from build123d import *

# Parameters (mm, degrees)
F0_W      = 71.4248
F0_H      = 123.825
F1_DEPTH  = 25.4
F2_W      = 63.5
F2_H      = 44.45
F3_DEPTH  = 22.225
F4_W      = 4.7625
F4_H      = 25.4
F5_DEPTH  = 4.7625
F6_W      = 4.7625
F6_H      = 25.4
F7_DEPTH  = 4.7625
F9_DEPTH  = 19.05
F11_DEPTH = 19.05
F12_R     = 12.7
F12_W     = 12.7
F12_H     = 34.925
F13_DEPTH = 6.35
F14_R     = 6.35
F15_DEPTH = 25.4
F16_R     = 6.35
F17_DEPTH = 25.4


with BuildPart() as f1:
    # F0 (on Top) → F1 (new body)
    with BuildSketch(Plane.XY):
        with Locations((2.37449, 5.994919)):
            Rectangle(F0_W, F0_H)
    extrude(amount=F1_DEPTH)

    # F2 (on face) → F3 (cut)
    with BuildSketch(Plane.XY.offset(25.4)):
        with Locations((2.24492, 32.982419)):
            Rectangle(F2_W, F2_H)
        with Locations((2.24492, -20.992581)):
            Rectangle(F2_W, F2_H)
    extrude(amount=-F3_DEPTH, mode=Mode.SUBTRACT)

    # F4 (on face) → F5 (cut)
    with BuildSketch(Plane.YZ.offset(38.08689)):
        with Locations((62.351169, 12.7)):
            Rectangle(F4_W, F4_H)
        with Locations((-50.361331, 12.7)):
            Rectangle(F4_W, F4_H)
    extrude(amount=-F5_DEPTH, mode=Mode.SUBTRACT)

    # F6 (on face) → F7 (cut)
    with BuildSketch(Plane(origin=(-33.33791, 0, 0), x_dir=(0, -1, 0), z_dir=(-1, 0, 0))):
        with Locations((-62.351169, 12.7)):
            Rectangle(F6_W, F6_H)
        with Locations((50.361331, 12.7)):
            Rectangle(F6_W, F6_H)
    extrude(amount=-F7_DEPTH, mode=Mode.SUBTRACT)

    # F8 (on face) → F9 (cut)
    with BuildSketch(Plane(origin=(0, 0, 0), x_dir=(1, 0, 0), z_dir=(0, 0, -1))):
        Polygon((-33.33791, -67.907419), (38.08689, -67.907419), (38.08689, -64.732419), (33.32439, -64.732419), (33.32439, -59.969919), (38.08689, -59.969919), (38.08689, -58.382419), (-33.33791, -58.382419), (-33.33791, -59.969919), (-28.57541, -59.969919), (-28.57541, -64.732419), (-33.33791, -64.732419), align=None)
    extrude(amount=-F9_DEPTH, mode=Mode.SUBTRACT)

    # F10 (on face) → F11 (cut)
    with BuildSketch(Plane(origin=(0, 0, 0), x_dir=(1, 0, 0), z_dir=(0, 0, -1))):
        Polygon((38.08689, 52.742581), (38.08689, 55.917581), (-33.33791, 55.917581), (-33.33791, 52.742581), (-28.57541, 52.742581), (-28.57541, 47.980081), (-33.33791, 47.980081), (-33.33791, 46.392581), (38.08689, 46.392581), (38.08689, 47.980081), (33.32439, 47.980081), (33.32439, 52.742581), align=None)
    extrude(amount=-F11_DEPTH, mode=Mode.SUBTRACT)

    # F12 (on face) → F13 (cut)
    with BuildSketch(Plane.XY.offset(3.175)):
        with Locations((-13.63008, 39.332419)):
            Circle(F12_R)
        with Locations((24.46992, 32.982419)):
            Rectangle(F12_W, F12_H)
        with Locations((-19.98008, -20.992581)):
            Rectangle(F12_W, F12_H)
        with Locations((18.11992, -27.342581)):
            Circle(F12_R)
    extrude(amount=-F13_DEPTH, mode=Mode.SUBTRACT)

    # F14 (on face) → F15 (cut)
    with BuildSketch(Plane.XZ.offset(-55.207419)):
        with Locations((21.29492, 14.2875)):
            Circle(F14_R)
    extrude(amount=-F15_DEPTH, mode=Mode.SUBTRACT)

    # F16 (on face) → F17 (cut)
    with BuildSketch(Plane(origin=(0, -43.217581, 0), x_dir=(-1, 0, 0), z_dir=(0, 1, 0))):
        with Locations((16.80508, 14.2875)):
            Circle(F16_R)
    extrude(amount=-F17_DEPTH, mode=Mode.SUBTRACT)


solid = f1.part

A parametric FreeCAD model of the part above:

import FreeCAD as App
import Part
import Sketcher

V = App.Vector
Q = App.Units.Quantity

doc = App.newDocument("Part")
params = doc.addObject("Spreadsheet::Sheet", "Params")
for row, (alias, value) in enumerate([
    ("sketch1_width", "2.812 in"),
    ("sketch1_height", "4.875 in"),
    ("pad1_length", "1 in"),
    ("sketch2_width", "2.5 in"),
    ("sketch2_height", "1.75 in"),
    ("pocket1_length", "0.875 in"),
    ("sketch3_height", "1 in"),
    ("sketch3_width", "0.1875 in"),
    ("pocket2_length", "0.1875 in"),
    ("sketch4_height", "1 in"),
    ("sketch4_width", "0.1875 in"),
    ("pocket3_length", "0.1875 in"),
    ("sketch5_width", "2.812 in"),
    ("sketch5_width2", "0.1875 in"),
    ("sketch5_height", "0.125 in"),
    ("sketch5_height2", "0.0625 in"),
    ("pocket4_length", "0.75 in"),
    ("sketch6_width", "2.812 in"),
    ("sketch6_width2", "0.1875 in"),
    ("sketch6_height", "0.125 in"),
    ("sketch6_height2", "0.0625 in"),
    ("pocket5_length", "0.75 in"),
    ("sketch7_diameter", "1 in"),
    ("sketch7_width", "0.5 in"),
    ("sketch7_height", "1.375 in"),
    ("pocket6_length", "0.25 in"),
    ("sketch8_diameter", "0.5 in"),
    ("pocket7_length", "1 in"),
    ("sketch9_diameter", "0.5 in"),
    ("pocket8_length", "1 in"),
], start=1):
    params.set(f"A{row}", alias)
    params.set(f"B{row}", "=" + value)
    params.setAlias(f"B{row}", alias)

body = doc.addObject("PartDesign::Body", "Body")

# Sketch on XY plane
sketch1 = doc.addObject("Sketcher::SketchObject", "Sketch")
body.addObject(sketch1)
sketch1.AttachmentSupport = (doc.XY_Plane, [""])
sketch1.MapMode = "FlatFace"
sketch1.addGeometry([
    Part.LineSegment(V(-33.33791, 67.907419, 0), V(-33.33791, -55.917581, 0)),
    Part.LineSegment(V(-33.33791, -55.917581, 0), V(38.08689, -55.917581, 0)),
    Part.LineSegment(V(38.08689, -55.917581, 0), V(38.08689, 67.907419, 0)),
    Part.LineSegment(V(38.08689, 67.907419, 0), V(-33.33791, 67.907419, 0)),
], False)
sketch1.addConstraint([
    Sketcher.Constraint("Coincident", 0, 2, 1, 1),
    Sketcher.Constraint("Coincident", 1, 2, 2, 1),
    Sketcher.Constraint("Coincident", 2, 2, 3, 1),
    Sketcher.Constraint("Coincident", 3, 2, 0, 1),
    Sketcher.Constraint("Vertical", 0),
    Sketcher.Constraint("Horizontal", 1),
    Sketcher.Constraint("Vertical", 2),
    Sketcher.Constraint("Horizontal", 3),
    Sketcher.Constraint("DistanceX", 1, 1, 1, 2, Q("2.812 in")),
    Sketcher.Constraint("DistanceY", 0, 2, 0, 1, Q("4.875 in")),
    Sketcher.Constraint("DistanceX", 0, 2, -1, 1, Q("33.33791 mm")),
    Sketcher.Constraint("DistanceY", 0, 2, -1, 1, Q("55.917581 mm")),
])
sketch1.setExpression("Constraints[8]", "Params.sketch1_width")
sketch1.setExpression("Constraints[9]", "Params.sketch1_height")
pad1 = doc.addObject("PartDesign::Pad", "Pad")
body.addObject(pad1)
pad1.Profile = sketch1
pad1.setExpression("Length", "Params.pad1_length")

# Sketch on XY plane
sketch2 = doc.addObject("Sketcher::SketchObject", "Sketch001")
body.addObject(sketch2)
sketch2.AttachmentSupport = (doc.XY_Plane, [""])
sketch2.MapMode = "FlatFace"
sketch2.AttachmentOffset = App.Placement(V(0, 0, 1 * 25.4), App.Rotation())
sketch2.addGeometry([
    Part.LineSegment(V(-29.50508, 55.207419, 0), V(-29.50508, 10.757419, 0)),  # 0
    Part.LineSegment(V(-29.50508, 10.757419, 0), V(33.99492, 10.757419, 0)),  # 1
    Part.LineSegment(V(33.99492, 10.757419, 0), V(33.99492, 55.207419, 0)),  # 2
    Part.LineSegment(V(33.99492, 55.207419, 0), V(-29.50508, 55.207419, 0)),  # 3
    Part.LineSegment(V(-29.50508, 1.232419, 0), V(-29.50508, -43.217581, 0)),  # 4
    Part.LineSegment(V(-29.50508, -43.217581, 0), V(33.99492, -43.217581, 0)),  # 5
    Part.LineSegment(V(33.99492, -43.217581, 0), V(33.99492, 1.232419, 0)),  # 6
    Part.LineSegment(V(33.99492, 1.232419, 0), V(-29.50508, 1.232419, 0)),  # 7
], False)
sketch2.addConstraint([
    Sketcher.Constraint("Coincident", 0, 2, 1, 1),
    Sketcher.Constraint("Coincident", 1, 2, 2, 1),
    Sketcher.Constraint("Coincident", 2, 2, 3, 1),
    Sketcher.Constraint("Coincident", 3, 2, 0, 1),
    Sketcher.Constraint("Coincident", 4, 2, 5, 1),
    Sketcher.Constraint("Coincident", 5, 2, 6, 1),
    Sketcher.Constraint("Coincident", 6, 2, 7, 1),
    Sketcher.Constraint("Coincident", 7, 2, 4, 1),
    Sketcher.Constraint("Vertical", 0),
    Sketcher.Constraint("Horizontal", 1),
    Sketcher.Constraint("Vertical", 2),
    Sketcher.Constraint("Horizontal", 3),
    Sketcher.Constraint("Vertical", 4),
    Sketcher.Constraint("Horizontal", 5),
    Sketcher.Constraint("Vertical", 6),
    Sketcher.Constraint("Horizontal", 7),
    Sketcher.Constraint("Vertical", 3, 2, 4, 2),
    Sketcher.Constraint("Vertical", 2, 2, 5, 2),
    Sketcher.Constraint("Equal", 2, 4),
    Sketcher.Constraint("DistanceX", 1, 1, 1, 2, Q("2.5 in")),
    Sketcher.Constraint("DistanceY", 0, 2, 0, 1, Q("1.75 in")),
    Sketcher.Constraint("DistanceY", 4, 2, 0, 2, Q("2.125 in")),
    Sketcher.Constraint("DistanceX", 0, 2, -1, 1, Q("29.50508 mm")),
    Sketcher.Constraint("DistanceY", -1, 1, 0, 2, Q("10.757419 mm")),
])
sketch2.setExpression("Constraints[19]", "Params.sketch2_width")
sketch2.setExpression("Constraints[20]", "Params.sketch2_height")
pocket1 = doc.addObject("PartDesign::Pocket", "Pocket")
body.addObject(pocket1)
pocket1.Profile = sketch2
pocket1.setExpression("Length", "Params.pocket1_length")

# Sketch on YZ plane
sketch3 = doc.addObject("Sketcher::SketchObject", "Sketch002")
body.addObject(sketch3)
sketch3.AttachmentSupport = (doc.YZ_Plane, [""])
sketch3.MapMode = "FlatFace"
sketch3.AttachmentOffset = App.Placement(V(0, 0, 38.08689), App.Rotation())
sketch3.addGeometry([
    Part.LineSegment(V(59.969919, 25.4, 0), V(59.969919, 0, 0)),  # 0
    Part.LineSegment(V(59.969919, 0, 0), V(64.732419, 0, 0)),  # 1
    Part.LineSegment(V(64.732419, 0, 0), V(64.732419, 25.4, 0)),  # 2
    Part.LineSegment(V(64.732419, 25.4, 0), V(59.969919, 25.4, 0)),  # 3
    Part.LineSegment(V(-52.742581, 25.4, 0), V(-52.742581, 0, 0)),  # 4
    Part.LineSegment(V(-52.742581, 0, 0), V(-47.980081, 0, 0)),  # 5
    Part.LineSegment(V(-47.980081, 0, 0), V(-47.980081, 25.4, 0)),  # 6
    Part.LineSegment(V(-47.980081, 25.4, 0), V(-52.742581, 25.4, 0)),  # 7
], False)
sketch3.addConstraint([
    Sketcher.Constraint("Coincident", 0, 2, 1, 1),
    Sketcher.Constraint("Coincident", 1, 2, 2, 1),
    Sketcher.Constraint("Coincident", 2, 2, 3, 1),
    Sketcher.Constraint("Coincident", 3, 2, 0, 1),
    Sketcher.Constraint("Coincident", 4, 2, 5, 1),
    Sketcher.Constraint("Coincident", 5, 2, 6, 1),
    Sketcher.Constraint("Coincident", 6, 2, 7, 1),
    Sketcher.Constraint("Coincident", 7, 2, 4, 1),
    Sketcher.Constraint("Vertical", 0),
    Sketcher.Constraint("Horizontal", 1),
    Sketcher.Constraint("Vertical", 2),
    Sketcher.Constraint("Horizontal", 3),
    Sketcher.Constraint("Vertical", 4),
    Sketcher.Constraint("Horizontal", 5),
    Sketcher.Constraint("Vertical", 6),
    Sketcher.Constraint("Horizontal", 7),
    Sketcher.Constraint("PointOnObject", 0, 2, -1),
    Sketcher.Constraint("PointOnObject", 4, 2, -1),
    Sketcher.Constraint("Horizontal", 3, 2, 6, 2),
    Sketcher.Constraint("Equal", 3, 5),
    Sketcher.Constraint("DistanceY", 0, 2, 0, 1, Q("1 in")),
    Sketcher.Constraint("DistanceX", 1, 1, 1, 2, Q("0.1875 in")),
    Sketcher.Constraint("DistanceX", 5, 2, 0, 2, Q("4.25 in")),
    Sketcher.Constraint("DistanceX", -1, 1, 0, 2, Q("59.969919 mm")),
])
sketch3.setExpression("Constraints[20]", "Params.sketch3_height")
sketch3.setExpression("Constraints[21]", "Params.sketch3_width")
pocket2 = doc.addObject("PartDesign::Pocket", "Pocket001")
body.addObject(pocket2)
pocket2.Profile = sketch3
pocket2.setExpression("Length", "Params.pocket2_length")

# Sketch on YZ plane
sketch4 = doc.addObject("Sketcher::SketchObject", "Sketch003")
body.addObject(sketch4)
sketch4.AttachmentSupport = (doc.YZ_Plane, [""])
sketch4.MapMode = "FlatFace"
sketch4.AttachmentOffset = App.Placement(V(0, 0, -33.33791), App.Rotation())
sketch4.addGeometry([
    Part.LineSegment(V(64.732419, 25.4, 0), V(64.732419, 0, 0)),  # 0
    Part.LineSegment(V(64.732419, 0, 0), V(59.969919, 0, 0)),  # 1
    Part.LineSegment(V(59.969919, 0, 0), V(59.969919, 25.4, 0)),  # 2
    Part.LineSegment(V(59.969919, 25.4, 0), V(64.732419, 25.4, 0)),  # 3
    Part.LineSegment(V(-47.980081, 25.4, 0), V(-47.980081, 0, 0)),  # 4
    Part.LineSegment(V(-47.980081, 0, 0), V(-52.742581, 0, 0)),  # 5
    Part.LineSegment(V(-52.742581, 0, 0), V(-52.742581, 25.4, 0)),  # 6
    Part.LineSegment(V(-52.742581, 25.4, 0), V(-47.980081, 25.4, 0)),  # 7
], False)
sketch4.addConstraint([
    Sketcher.Constraint("Coincident", 0, 2, 1, 1),
    Sketcher.Constraint("Coincident", 1, 2, 2, 1),
    Sketcher.Constraint("Coincident", 2, 2, 3, 1),
    Sketcher.Constraint("Coincident", 3, 2, 0, 1),
    Sketcher.Constraint("Coincident", 4, 2, 5, 1),
    Sketcher.Constraint("Coincident", 5, 2, 6, 1),
    Sketcher.Constraint("Coincident", 6, 2, 7, 1),
    Sketcher.Constraint("Coincident", 7, 2, 4, 1),
    Sketcher.Constraint("Vertical", 0),
    Sketcher.Constraint("Horizontal", 1),
    Sketcher.Constraint("Vertical", 2),
    Sketcher.Constraint("Horizontal", 3),
    Sketcher.Constraint("Vertical", 4),
    Sketcher.Constraint("Horizontal", 5),
    Sketcher.Constraint("Vertical", 6),
    Sketcher.Constraint("Horizontal", 7),
    Sketcher.Constraint("PointOnObject", 0, 2, -1),
    Sketcher.Constraint("PointOnObject", 4, 2, -1),
    Sketcher.Constraint("Horizontal", 3, 2, 6, 2),
    Sketcher.Constraint("Equal", 3, 5),
    Sketcher.Constraint("DistanceY", 0, 2, 0, 1, Q("1 in")),
    Sketcher.Constraint("DistanceX", 1, 2, 1, 1, Q("0.1875 in")),
    Sketcher.Constraint("DistanceX", 4, 2, 1, 2, Q("4.25 in")),
    Sketcher.Constraint("DistanceX", -1, 1, 0, 2, Q("64.732419 mm")),
])
sketch4.setExpression("Constraints[20]", "Params.sketch4_height")
sketch4.setExpression("Constraints[21]", "Params.sketch4_width")
pocket3 = doc.addObject("PartDesign::Pocket", "Pocket002")
body.addObject(pocket3)
pocket3.Profile = sketch4
pocket3.setExpression("Length", "Params.pocket3_length")
pocket3.Reversed = True

# Sketch on XY plane
sketch5 = doc.addObject("Sketcher::SketchObject", "Sketch004")
body.addObject(sketch5)
sketch5.AttachmentSupport = (doc.XY_Plane, [""])
sketch5.MapMode = "FlatFace"
sketch5.addGeometry([
    Part.LineSegment(V(-33.33791, 67.907419, 0), V(38.08689, 67.907419, 0)),  # 0
    Part.LineSegment(V(38.08689, 67.907419, 0), V(38.08689, 64.732419, 0)),  # 1
    Part.LineSegment(V(38.08689, 64.732419, 0), V(33.32439, 64.732419, 0)),  # 2
    Part.LineSegment(V(33.32439, 64.732419, 0), V(33.32439, 59.969919, 0)),  # 3
    Part.LineSegment(V(33.32439, 59.969919, 0), V(38.08689, 59.969919, 0)),  # 4
    Part.LineSegment(V(38.08689, 59.969919, 0), V(38.08689, 58.382419, 0)),  # 5
    Part.LineSegment(V(38.08689, 58.382419, 0), V(-33.33791, 58.382419, 0)),  # 6
    Part.LineSegment(V(-33.33791, 58.382419, 0), V(-33.33791, 59.969919, 0)),  # 7
    Part.LineSegment(V(-33.33791, 59.969919, 0), V(-28.57541, 59.969919, 0)),  # 8
    Part.LineSegment(V(-28.57541, 59.969919, 0), V(-28.57541, 64.732419, 0)),  # 9
    Part.LineSegment(V(-28.57541, 64.732419, 0), V(-33.33791, 64.732419, 0)),  # 10
    Part.LineSegment(V(-33.33791, 64.732419, 0), V(-33.33791, 67.907419, 0)),  # 11
], False)
sketch5.addConstraint([
    Sketcher.Constraint("Coincident", 0, 2, 1, 1),
    Sketcher.Constraint("Coincident", 1, 2, 2, 1),
    Sketcher.Constraint("Coincident", 2, 2, 3, 1),
    Sketcher.Constraint("Coincident", 3, 2, 4, 1),
    Sketcher.Constraint("Coincident", 4, 2, 5, 1),
    Sketcher.Constraint("Coincident", 5, 2, 6, 1),
    Sketcher.Constraint("Coincident", 6, 2, 7, 1),
    Sketcher.Constraint("Coincident", 7, 2, 8, 1),
    Sketcher.Constraint("Coincident", 8, 2, 9, 1),
    Sketcher.Constraint("Coincident", 9, 2, 10, 1),
    Sketcher.Constraint("Coincident", 10, 2, 11, 1),
    Sketcher.Constraint("Coincident", 11, 2, 0, 1),
    Sketcher.Constraint("Horizontal", 0),
    Sketcher.Constraint("Vertical", 1),
    Sketcher.Constraint("Horizontal", 2),
    Sketcher.Constraint("Vertical", 3),
    Sketcher.Constraint("Horizontal", 4),
    Sketcher.Constraint("Vertical", 5),
    Sketcher.Constraint("Horizontal", 6),
    Sketcher.Constraint("Vertical", 7),
    Sketcher.Constraint("Horizontal", 8),
    Sketcher.Constraint("Vertical", 9),
    Sketcher.Constraint("Horizontal", 10),
    Sketcher.Constraint("Vertical", 11),
    Sketcher.Constraint("Horizontal", 4, 2, 7, 2),
    Sketcher.Constraint("Horizontal", 2, 2, 9, 2),
    Sketcher.Constraint("Vertical", 1, 2, 4, 2),
    Sketcher.Constraint("Vertical", 7, 2, 10, 2),
    Sketcher.Constraint("Equal", 4, 8),
    Sketcher.Constraint("Equal", 10, 3),
    Sketcher.Constraint("DistanceX", 0, 1, 0, 2, Q("2.812 in")),
    Sketcher.Constraint("DistanceX", 2, 2, 2, 1, Q("0.1875 in")),
    Sketcher.Constraint("DistanceY", 1, 2, 1, 1, Q("0.125 in")),
    Sketcher.Constraint("DistanceY", 5, 2, 5, 1, Q("0.0625 in")),
    Sketcher.Constraint("DistanceX", -1, 1, 0, 2, Q("38.08689 mm")),
    Sketcher.Constraint("DistanceY", -1, 1, 0, 2, Q("67.907419 mm")),
])
sketch5.setExpression("Constraints[30]", "Params.sketch5_width")
sketch5.setExpression("Constraints[31]", "Params.sketch5_width2")
sketch5.setExpression("Constraints[32]", "Params.sketch5_height")
sketch5.setExpression("Constraints[33]", "Params.sketch5_height2")
pocket4 = doc.addObject("PartDesign::Pocket", "Pocket003")
body.addObject(pocket4)
pocket4.Profile = sketch5
pocket4.setExpression("Length", "Params.pocket4_length")
pocket4.Reversed = True

# Sketch on XY plane
sketch6 = doc.addObject("Sketcher::SketchObject", "Sketch005")
body.addObject(sketch6)
sketch6.AttachmentSupport = (doc.XY_Plane, [""])
sketch6.MapMode = "FlatFace"
sketch6.addGeometry([
    Part.LineSegment(V(38.08689, -52.742581, 0), V(38.08689, -55.917581, 0)),  # 0
    Part.LineSegment(V(38.08689, -55.917581, 0), V(-33.33791, -55.917581, 0)),  # 1
    Part.LineSegment(V(-33.33791, -55.917581, 0), V(-33.33791, -52.742581, 0)),  # 2
    Part.LineSegment(V(-33.33791, -52.742581, 0), V(-28.57541, -52.742581, 0)),  # 3
    Part.LineSegment(V(-28.57541, -52.742581, 0), V(-28.57541, -47.980081, 0)),  # 4
    Part.LineSegment(V(-28.57541, -47.980081, 0), V(-33.33791, -47.980081, 0)),  # 5
    Part.LineSegment(V(-33.33791, -47.980081, 0), V(-33.33791, -46.392581, 0)),  # 6
    Part.LineSegment(V(-33.33791, -46.392581, 0), V(38.08689, -46.392581, 0)),  # 7
    Part.LineSegment(V(38.08689, -46.392581, 0), V(38.08689, -47.980081, 0)),  # 8
    Part.LineSegment(V(38.08689, -47.980081, 0), V(33.32439, -47.980081, 0)),  # 9
    Part.LineSegment(V(33.32439, -47.980081, 0), V(33.32439, -52.742581, 0)),  # 10
    Part.LineSegment(V(33.32439, -52.742581, 0), V(38.08689, -52.742581, 0)),  # 11
], False)
sketch6.addConstraint([
    Sketcher.Constraint("Coincident", 0, 2, 1, 1),
    Sketcher.Constraint("Coincident", 1, 2, 2, 1),
    Sketcher.Constraint("Coincident", 2, 2, 3, 1),
    Sketcher.Constraint("Coincident", 3, 2, 4, 1),
    Sketcher.Constraint("Coincident", 4, 2, 5, 1),
    Sketcher.Constraint("Coincident", 5, 2, 6, 1),
    Sketcher.Constraint("Coincident", 6, 2, 7, 1),
    Sketcher.Constraint("Coincident", 7, 2, 8, 1),
    Sketcher.Constraint("Coincident", 8, 2, 9, 1),
    Sketcher.Constraint("Coincident", 9, 2, 10, 1),
    Sketcher.Constraint("Coincident", 10, 2, 11, 1),
    Sketcher.Constraint("Coincident", 11, 2, 0, 1),
    Sketcher.Constraint("Vertical", 0),
    Sketcher.Constraint("Horizontal", 1),
    Sketcher.Constraint("Vertical", 2),
    Sketcher.Constraint("Horizontal", 3),
    Sketcher.Constraint("Vertical", 4),
    Sketcher.Constraint("Horizontal", 5),
    Sketcher.Constraint("Vertical", 6),
    Sketcher.Constraint("Horizontal", 7),
    Sketcher.Constraint("Vertical", 8),
    Sketcher.Constraint("Horizontal", 9),
    Sketcher.Constraint("Vertical", 10),
    Sketcher.Constraint("Horizontal", 11),
    Sketcher.Constraint("Horizontal", 5, 2, 8, 2),
    Sketcher.Constraint("Horizontal", 3, 2, 10, 2),
    Sketcher.Constraint("Vertical", 2, 2, 5, 2),
    Sketcher.Constraint("Vertical", 0, 2, 7, 2),
    Sketcher.Constraint("Equal", 5, 9),
    Sketcher.Constraint("Equal", 11, 4),
    Sketcher.Constraint("DistanceX", 1, 2, 1, 1, Q("2.812 in")),
    Sketcher.Constraint("DistanceX", 3, 1, 3, 2, Q("0.1875 in")),
    Sketcher.Constraint("DistanceY", 0, 2, 0, 1, Q("0.125 in")),
    Sketcher.Constraint("DistanceY", 6, 1, 6, 2, Q("0.0625 in")),
    Sketcher.Constraint("DistanceX", -1, 1, 0, 2, Q("38.08689 mm")),
    Sketcher.Constraint("DistanceY", 0, 2, -1, 1, Q("55.917581 mm")),
])
sketch6.setExpression("Constraints[30]", "Params.sketch6_width")
sketch6.setExpression("Constraints[31]", "Params.sketch6_width2")
sketch6.setExpression("Constraints[32]", "Params.sketch6_height")
sketch6.setExpression("Constraints[33]", "Params.sketch6_height2")
pocket5 = doc.addObject("PartDesign::Pocket", "Pocket004")
body.addObject(pocket5)
pocket5.Profile = sketch6
pocket5.setExpression("Length", "Params.pocket5_length")
pocket5.Reversed = True

# Sketch on XY plane
sketch7 = doc.addObject("Sketcher::SketchObject", "Sketch006")
body.addObject(sketch7)
sketch7.AttachmentSupport = (doc.XY_Plane, [""])
sketch7.MapMode = "FlatFace"
sketch7.AttachmentOffset = App.Placement(V(0, 0, 0.125 * 25.4), App.Rotation())
sketch7.addGeometry([
    Part.Circle(V(-13.63008, 39.332419, 0), V(0, 0, 1), 12.7),  # 0
    Part.LineSegment(V(18.11992, 50.444919, 0), V(18.11992, 15.519919, 0)),  # 1
    Part.LineSegment(V(18.11992, 15.519919, 0), V(30.81992, 15.519919, 0)),  # 2
    Part.LineSegment(V(30.81992, 15.519919, 0), V(30.81992, 50.444919, 0)),  # 3
    Part.LineSegment(V(30.81992, 50.444919, 0), V(18.11992, 50.444919, 0)),  # 4
    Part.LineSegment(V(-26.33008, -3.530081, 0), V(-26.33008, -38.455081, 0)),  # 5
    Part.LineSegment(V(-26.33008, -38.455081, 0), V(-13.63008, -38.455081, 0)),  # 6
    Part.LineSegment(V(-13.63008, -38.455081, 0), V(-13.63008, -3.530081, 0)),  # 7
    Part.LineSegment(V(-13.63008, -3.530081, 0), V(-26.33008, -3.530081, 0)),  # 8
    Part.Circle(V(18.11992, -27.342581, 0), V(0, 0, 1), 12.7),  # 9
], False)
sketch7.addConstraint([
    Sketcher.Constraint("Coincident", 1, 2, 2, 1),
    Sketcher.Constraint("Coincident", 2, 2, 3, 1),
    Sketcher.Constraint("Coincident", 3, 2, 4, 1),
    Sketcher.Constraint("Coincident", 4, 2, 1, 1),
    Sketcher.Constraint("Coincident", 5, 2, 6, 1),
    Sketcher.Constraint("Coincident", 6, 2, 7, 1),
    Sketcher.Constraint("Coincident", 7, 2, 8, 1),
    Sketcher.Constraint("Coincident", 8, 2, 5, 1),
    Sketcher.Constraint("Vertical", 1),
    Sketcher.Constraint("Horizontal", 2),
    Sketcher.Constraint("Vertical", 3),
    Sketcher.Constraint("Horizontal", 4),
    Sketcher.Constraint("Vertical", 5),
    Sketcher.Constraint("Horizontal", 6),
    Sketcher.Constraint("Vertical", 7),
    Sketcher.Constraint("Horizontal", 8),
    Sketcher.Constraint("Equal", 0, 9),
    Sketcher.Constraint("Vertical", 9, 3, 1, 2),
    Sketcher.Constraint("Vertical", 0, 3, 6, 2),
    Sketcher.Constraint("Equal", 4, 6),
    Sketcher.Constraint("Equal", 3, 5),
    Sketcher.Constraint("Diameter", 0, Q("1 in")),
    Sketcher.Constraint("DistanceX", 2, 1, 2, 2, Q("0.5 in")),
    Sketcher.Constraint("DistanceY", 5, 2, 4, 2, Q("3.5 in")),
    Sketcher.Constraint("DistanceY", 1, 2, 1, 1, Q("1.375 in")),
    Sketcher.Constraint("DistanceX", 0, 3, 9, 3, Q("1.25 in")),
    Sketcher.Constraint("DistanceY", 9, 3, 0, 3, Q("2.625 in")),
    Sketcher.Constraint("DistanceY", 1, 2, 0, 3, Q("0.9375 in")),
    Sketcher.Constraint("DistanceX", 0, 3, -1, 1, Q("13.63008 mm")),
    Sketcher.Constraint("DistanceY", -1, 1, 0, 3, Q("39.332419 mm")),
])
sketch7.setExpression("Constraints[21]", "Params.sketch7_diameter")
sketch7.setExpression("Constraints[22]", "Params.sketch7_width")
sketch7.setExpression("Constraints[24]", "Params.sketch7_height")
pocket6 = doc.addObject("PartDesign::Pocket", "Pocket005")
body.addObject(pocket6)
pocket6.Profile = sketch7
pocket6.setExpression("Length", "Params.pocket6_length")

# Sketch on XZ plane
sketch8 = doc.addObject("Sketcher::SketchObject", "Sketch007")
body.addObject(sketch8)
sketch8.AttachmentSupport = (doc.XZ_Plane, [""])
sketch8.MapMode = "FlatFace"
sketch8.AttachmentOffset = App.Placement(V(0, 0, -55.207419), App.Rotation())
sketch8.addGeometry(Part.Circle(V(21.29492, 14.2875, 0), V(0, 0, 1), 6.35), False)
sketch8.addConstraint([
    Sketcher.Constraint("Diameter", 0, Q("0.5 in")),
    Sketcher.Constraint("DistanceY", -1, 1, 0, 3, Q("0.5625 in")),
    Sketcher.Constraint("DistanceX", -1, 1, 0, 3, Q("21.29492 mm")),
])
sketch8.setExpression("Constraints[0]", "Params.sketch8_diameter")
pocket7 = doc.addObject("PartDesign::Pocket", "Pocket006")
body.addObject(pocket7)
pocket7.Profile = sketch8
pocket7.setExpression("Length", "Params.pocket7_length")

# Sketch on XZ plane
sketch9 = doc.addObject("Sketcher::SketchObject", "Sketch008")
body.addObject(sketch9)
sketch9.AttachmentSupport = (doc.XZ_Plane, [""])
sketch9.MapMode = "FlatFace"
sketch9.AttachmentOffset = App.Placement(V(0, 0, 43.217581), App.Rotation())
sketch9.addGeometry(Part.Circle(V(-16.80508, 14.2875, 0), V(0, 0, 1), 6.35), False)
sketch9.addConstraint([
    Sketcher.Constraint("Diameter", 0, Q("0.5 in")),
    Sketcher.Constraint("DistanceY", -1, 1, 0, 3, Q("0.5625 in")),
    Sketcher.Constraint("DistanceX", 0, 3, -1, 1, Q("16.80508 mm")),
])
sketch9.setExpression("Constraints[0]", "Params.sketch9_diameter")
pocket8 = doc.addObject("PartDesign::Pocket", "Pocket007")
body.addObject(pocket8)
pocket8.Profile = sketch9
pocket8.setExpression("Length", "Params.pocket8_length")
pocket8.Reversed = True

doc.recompute()
